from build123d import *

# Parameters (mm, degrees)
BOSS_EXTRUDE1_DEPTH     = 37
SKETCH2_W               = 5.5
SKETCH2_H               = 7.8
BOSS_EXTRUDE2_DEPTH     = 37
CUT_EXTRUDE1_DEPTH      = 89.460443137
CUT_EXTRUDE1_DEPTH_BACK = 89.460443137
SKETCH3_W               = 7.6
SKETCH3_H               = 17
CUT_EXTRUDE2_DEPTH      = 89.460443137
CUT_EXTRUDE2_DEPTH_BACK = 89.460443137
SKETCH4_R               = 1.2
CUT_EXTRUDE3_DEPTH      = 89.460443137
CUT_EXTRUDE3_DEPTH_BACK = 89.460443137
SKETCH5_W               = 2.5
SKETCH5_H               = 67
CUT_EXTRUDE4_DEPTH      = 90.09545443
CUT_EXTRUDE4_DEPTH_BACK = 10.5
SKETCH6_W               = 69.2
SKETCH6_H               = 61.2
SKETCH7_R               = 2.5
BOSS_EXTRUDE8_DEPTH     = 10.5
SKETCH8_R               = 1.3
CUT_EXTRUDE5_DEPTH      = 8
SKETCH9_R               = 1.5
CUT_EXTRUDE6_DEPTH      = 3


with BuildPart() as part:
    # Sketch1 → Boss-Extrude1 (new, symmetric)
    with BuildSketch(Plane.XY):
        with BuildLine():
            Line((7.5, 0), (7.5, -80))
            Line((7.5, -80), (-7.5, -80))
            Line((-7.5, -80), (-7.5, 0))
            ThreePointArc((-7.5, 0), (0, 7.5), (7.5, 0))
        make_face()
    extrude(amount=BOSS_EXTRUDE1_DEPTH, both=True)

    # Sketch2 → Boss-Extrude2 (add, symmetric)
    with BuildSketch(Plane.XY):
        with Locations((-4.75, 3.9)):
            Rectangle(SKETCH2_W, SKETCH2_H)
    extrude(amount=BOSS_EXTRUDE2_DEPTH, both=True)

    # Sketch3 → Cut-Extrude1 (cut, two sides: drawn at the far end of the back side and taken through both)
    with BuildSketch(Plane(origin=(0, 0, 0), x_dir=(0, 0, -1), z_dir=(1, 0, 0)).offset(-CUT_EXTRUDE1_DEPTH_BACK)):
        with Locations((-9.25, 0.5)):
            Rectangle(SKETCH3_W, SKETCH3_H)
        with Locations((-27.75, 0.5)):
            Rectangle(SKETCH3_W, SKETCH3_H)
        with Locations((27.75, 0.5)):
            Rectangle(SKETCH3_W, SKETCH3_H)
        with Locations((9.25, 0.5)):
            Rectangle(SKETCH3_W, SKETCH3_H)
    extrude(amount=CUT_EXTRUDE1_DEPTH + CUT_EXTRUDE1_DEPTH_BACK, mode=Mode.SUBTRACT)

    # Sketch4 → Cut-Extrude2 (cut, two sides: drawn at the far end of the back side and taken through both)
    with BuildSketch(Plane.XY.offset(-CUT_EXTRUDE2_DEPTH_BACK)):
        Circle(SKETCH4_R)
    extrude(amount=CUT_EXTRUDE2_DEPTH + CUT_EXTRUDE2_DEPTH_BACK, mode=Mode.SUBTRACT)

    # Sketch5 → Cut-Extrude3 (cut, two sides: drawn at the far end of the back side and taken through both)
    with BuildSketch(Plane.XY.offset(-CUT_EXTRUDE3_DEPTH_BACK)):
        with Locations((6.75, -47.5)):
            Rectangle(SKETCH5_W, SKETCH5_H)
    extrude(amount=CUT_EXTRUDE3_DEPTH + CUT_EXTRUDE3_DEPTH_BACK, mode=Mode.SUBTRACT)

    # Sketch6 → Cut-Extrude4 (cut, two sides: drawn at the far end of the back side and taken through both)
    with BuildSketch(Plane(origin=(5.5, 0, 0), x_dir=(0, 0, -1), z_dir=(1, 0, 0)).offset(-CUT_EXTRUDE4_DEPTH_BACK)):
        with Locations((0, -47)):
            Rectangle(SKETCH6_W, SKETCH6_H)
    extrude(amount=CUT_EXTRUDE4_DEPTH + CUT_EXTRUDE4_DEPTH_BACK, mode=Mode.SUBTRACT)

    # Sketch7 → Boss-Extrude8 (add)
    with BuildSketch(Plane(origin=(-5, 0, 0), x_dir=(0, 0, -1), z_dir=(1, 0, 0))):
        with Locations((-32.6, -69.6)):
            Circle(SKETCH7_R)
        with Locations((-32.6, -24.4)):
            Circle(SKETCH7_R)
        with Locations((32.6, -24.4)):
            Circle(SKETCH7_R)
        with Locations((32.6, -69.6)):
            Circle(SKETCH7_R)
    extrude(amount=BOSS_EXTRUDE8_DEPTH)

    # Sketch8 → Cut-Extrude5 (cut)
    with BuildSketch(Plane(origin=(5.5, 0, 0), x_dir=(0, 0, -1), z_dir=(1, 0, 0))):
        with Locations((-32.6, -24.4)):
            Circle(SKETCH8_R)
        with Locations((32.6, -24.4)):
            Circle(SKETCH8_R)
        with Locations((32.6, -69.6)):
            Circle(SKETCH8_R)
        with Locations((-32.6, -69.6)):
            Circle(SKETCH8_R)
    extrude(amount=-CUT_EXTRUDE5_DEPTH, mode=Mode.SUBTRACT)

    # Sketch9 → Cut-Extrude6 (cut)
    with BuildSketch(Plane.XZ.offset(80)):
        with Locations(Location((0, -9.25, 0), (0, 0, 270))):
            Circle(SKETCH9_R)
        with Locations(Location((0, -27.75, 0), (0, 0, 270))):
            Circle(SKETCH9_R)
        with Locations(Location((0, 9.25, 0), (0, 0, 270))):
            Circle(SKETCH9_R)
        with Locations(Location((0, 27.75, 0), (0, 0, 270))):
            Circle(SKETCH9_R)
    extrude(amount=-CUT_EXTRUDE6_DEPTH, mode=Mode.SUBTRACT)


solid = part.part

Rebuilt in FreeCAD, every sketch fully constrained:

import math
import FreeCAD as App
import Part
import Sketcher

V = App.Vector
Q = App.Units.Quantity


def add_polygon(sketch, points):
    """Adds a closed chain of lines whose ends are joined by coincident constraints."""
    first, n = sketch.GeometryCount, len(points)
    for a, b in zip(points, points[1:] + points[:1]):
        sketch.addGeometry(Part.LineSegment(App.Vector(*a, 0), App.Vector(*b, 0)), False)
    for i in range(n):
        sketch.addConstraint(Sketcher.Constraint("Coincident", first + i, 2, first + (i + 1) % n, 1))

doc = App.newDocument("Part")
body = doc.addObject("PartDesign::Body", "Body")

# Sketch on XY plane
sketch1 = body.newObject("Sketcher::SketchObject", "Sketch")
sketch1.AttachmentSupport = (doc.getObject("XY_Plane"), [""])
sketch1.MapMode = "FlatFace"
sketch1.addGeometry([
    Part.LineSegment(V(8, -80, 0), V(8, 0, 0)),
    Part.ArcOfCircle(Part.Circle(V(0, 0, 0), V(0, 0, 1), 8), math.radians(0), math.radians(180)),
    Part.LineSegment(V(-8, 0, 0), V(-8, -80, 0)),
    Part.LineSegment(V(-8, -80, 0), V(8, -80, 0)),
], False)
sketch1.addConstraint([
    Sketcher.Constraint("Tangent", 0, 2, 1, 1),
    Sketcher.Constraint("Tangent", 1, 2, 2, 1),
    Sketcher.Constraint("Coincident", 2, 2, 3, 1),
    Sketcher.Constraint("Coincident", 3, 2, 0, 1),
    Sketcher.Constraint("Vertical", 0),
    Sketcher.Constraint("Vertical", 2),
    Sketcher.Constraint("Horizontal", 3),
    Sketcher.Constraint("Coincident", 1, 3, -1, 1),
    Sketcher.Constraint("Radius", 1, Q("7.5 mm")),
    Sketcher.Constraint("DistanceY", 0, 1, 0, 2, Q("80 mm")),
])
pad1 = body.newObject("PartDesign::Pad", "Pad")
pad1.Profile = sketch1
pad1.Length = 74
pad1.Midplane = True

# Sketch on XY plane
sketch2 = body.newObject("Sketcher::SketchObject", "Sketch001")
sketch2.AttachmentSupport = (doc.getObject("XY_Plane"), [""])
sketch2.MapMode = "FlatFace"
add_polygon(sketch2, [(-8, 8), (-8, 0), (-2, 0), (-2, 8)])  # lines 0-3
sketch2.addConstraint([
    Sketcher.Constraint("Vertical", 0),
    Sketcher.Constraint("Horizontal", 1),
    Sketcher.Constraint("Vertical", 2),
    Sketcher.Constraint("Horizontal", 3),
    Sketcher.Constraint("PointOnObject", 0, 2, -1),
    Sketcher.Constraint("DistanceX", 1, 1, 1, 2, Q("5.5 mm")),
    Sketcher.Constraint("DistanceY", 0, 2, 0, 1, Q("7.8 mm")),
    Sketcher.Constraint("DistanceX", 1, 2, -1, 1, Q("2 mm")),
])
pad2 = body.newObject("PartDesign::Pad", "Pad001")
pad2.Profile = sketch2
pad2.Length = 74
pad2.Midplane = True

# Sketch on YZ plane
sketch3 = body.newObject("Sketcher::SketchObject", "Sketch002")
sketch3.AttachmentSupport = (doc.getObject("YZ_Plane"), [""])
sketch3.MapMode = "FlatFace"
add_polygon(sketch3, [(9, 13), (-8, 13), (-8, 5), (9, 5)])  # lines 0-3
add_polygon(sketch3, [(9, 32), (-8, 32), (-8, 24), (9, 24)])  # lines 4-7
add_polygon(sketch3, [(9, -24), (-8, -24), (-8, -32), (9, -32)])  # lines 8-11
add_polygon(sketch3, [(9, -5), (-8, -5), (-8, -13), (9, -13)])  # lines 12-15
sketch3.addConstraint([
    Sketcher.Constraint("Horizontal", 0),
    Sketcher.Constraint("Vertical", 1),
    Sketcher.Constraint("Horizontal", 2),
    Sketcher.Constraint("Vertical", 3),
    Sketcher.Constraint("Horizontal", 4),
    Sketcher.Constraint("Vertical", 5),
    Sketcher.Constraint("Horizontal", 6),
    Sketcher.Constraint("Vertical", 7),
    Sketcher.Constraint("Horizontal", 8),
    Sketcher.Constraint("Vertical", 9),
    Sketcher.Constraint("Horizontal", 10),
    Sketcher.Constraint("Vertical", 11),
    Sketcher.Constraint("Horizontal", 12),
    Sketcher.Constraint("Vertical", 13),
    Sketcher.Constraint("Horizontal", 14),
    Sketcher.Constraint("Vertical", 15),
    Sketcher.Constraint("Symmetric", 5, 2, 8, 2, -1),
    Sketcher.Constraint("Symmetric", 7, 2, 10, 2, -1),
    Sketcher.Constraint("Symmetric", 1, 2, 12, 2, -1),
    Sketcher.Constraint("Symmetric", 3, 2, 14, 2, -1),
    Sketcher.Constraint("Vertical", 1, 2, 4, 2),
    Sketcher.Constraint("Vertical", 3, 2, 6, 2),
    Sketcher.Constraint("Equal", 3, 5),
    Sketcher.Constraint("DistanceX", 0, 2, 0, 1, Q("17 mm")),
    Sketcher.Constraint("DistanceY", 1, 2, 1, 1, Q("7.6 mm")),
    Sketcher.Constraint("DistanceX", 0, 2, -1, 1, Q("8 mm")),
    Sketcher.Constraint("DistanceY", 8, 2, 0, 2, Q("37 mm")),
    Sketcher.Constraint("DistanceY", 0, 2, 4, 2, Q("18.5 mm")),
])
pocket1 = body.newObject("PartDesign::Pocket", "Pocket")
pocket1.Profile = sketch3
pocket1.Type = "ThroughAll"
pocket1.Midplane = True

# Sketch on XY plane
sketch4 = body.newObject("Sketcher::SketchObject", "Sketch003")
sketch4.AttachmentSupport = (doc.getObject("XY_Plane"), [""])
sketch4.MapMode = "FlatFace"
sketch4.addGeometry(Part.Circle(V(0, 0, 0), V(0, 0, 1), 1.2), False)
sketch4.addConstraint([
    Sketcher.Constraint("Coincident", 0, 3, -1, 1),
    Sketcher.Constraint("Diameter", 0, Q("2.4 mm")),
])
pocket2 = body.newObject("PartDesign::Pocket", "Pocket001")
pocket2.Profile = sketch4
pocket2.Type = "ThroughAll"
pocket2.Midplane = True

# Sketch on XY plane
sketch5 = body.newObject("Sketcher::SketchObject", "Sketch004")
sketch5.AttachmentSupport = (doc.getObject("XY_Plane"), [""])
sketch5.MapMode = "FlatFace"
add_polygon(sketch5, [(5.5, -14), (5.5, -81), (8, -81), (8, -14)])  # lines 0-3
sketch5.addConstraint([
    Sketcher.Constraint("Vertical", 0),
    Sketcher.Constraint("Horizontal", 1),
    Sketcher.Constraint("Vertical", 2),
    Sketcher.Constraint("Horizontal", 3),
    Sketcher.Constraint("DistanceY", 0, 2, 0, 1, Q("67 mm")),
    Sketcher.Constraint("DistanceX", 1, 1, 1, 2, Q("2.5 mm")),
    Sketcher.Constraint("DistanceY", 0, 2, -1, 1, Q("81 mm")),
    Sketcher.Constraint("DistanceX", -1, 1, 1, 2, Q("8 mm")),
])
pocket3 = body.newObject("PartDesign::Pocket", "Pocket002")
pocket3.Profile = sketch5
pocket3.Type = "ThroughAll"
pocket3.Midplane = True

# Sketch on YZ plane
sketch6 = body.newObject("Sketcher::SketchObject", "Sketch005")
sketch6.AttachmentSupport = (doc.getObject("YZ_Plane"), [""])
sketch6.MapMode = "FlatFace"
sketch6.AttachmentOffset = App.Placement(V(0, 0, 5.5), App.Rotation())
add_polygon(sketch6, [(-16, 35), (-78, 35), (-78, -35), (-16, -35)])  # lines 0-3
sketch6.addConstraint([
    Sketcher.Constraint("Horizontal", 0),
    Sketcher.Constraint("Vertical", 1),
    Sketcher.Constraint("Horizontal", 2),
    Sketcher.Constraint("Vertical", 3),
    Sketcher.Constraint("DistanceX", 0, 2, 0, 1, Q("61.2 mm")),
    Sketcher.Constraint("DistanceY", 1, 2, 1, 1, Q("69.2 mm")),
    Sketcher.Constraint("DistanceX", 0, 2, -1, 1, Q("77.6 mm")),
    Sketcher.Constraint("DistanceY", -1, 1, 0, 2, Q("34.6 mm")),
])
pocket4 = body.newObject("PartDesign::Pocket", "Pocket003")
pocket4.Profile = sketch6
pocket4.Type = "TwoLengths"
pocket4.Length = 90.095454
pocket4.Length2 = 10.5
pocket4.Reversed = True

# Sketch on YZ plane
sketch7 = body.newObject("Sketcher::SketchObject", "Sketch006")
sketch7.AttachmentSupport = (doc.getObject("YZ_Plane"), [""])
sketch7.MapMode = "FlatFace"
sketch7.AttachmentOffset = App.Placement(V(0, 0, -5), App.Rotation())
sketch7.addGeometry([
    Part.Circle(V(-69.6, 32.6, 0), V(0, 0, 1), 2.5),
    Part.Circle(V(-24.4, 32.6, 0), V(0, 0, 1), 2.5),
    Part.Circle(V(-24.4, -32.6, 0), V(0, 0, 1), 2.5),
    Part.Circle(V(-69.6, -32.6, 0), V(0, 0, 1), 2.5),
], False)
sketch7.addConstraint([
    Sketcher.Constraint("Equal", 0, 1),
    Sketcher.Constraint("Equal", 1, 2),
    Sketcher.Constraint("Equal", 2, 3),
    Sketcher.Constraint("Symmetric", 1, 3, 2, 3, -1),
    Sketcher.Constraint("Symmetric", 0, 3, 3, 3, -1),
    Sketcher.Constraint("Horizontal", 0, 3, 1, 3),
    Sketcher.Constraint("Diameter", 0, Q("5 mm")),
    Sketcher.Constraint("DistanceX", 0, 3, -1, 1, Q("69.6 mm")),
    Sketcher.Constraint("DistanceY", -1, 1, 0, 3, Q("32.6 mm")),
    Sketcher.Constraint("DistanceX", 1, 3, -1, 1, Q("24.4 mm")),
])
pad3 = body.newObject("PartDesign::Pad", "Pad002")
pad3.Profile = sketch7
pad3.Length = 10.5

# Sketch on YZ plane
sketch8 = body.newObject("Sketcher::SketchObject", "Sketch007")
sketch8.AttachmentSupport = (doc.getObject("YZ_Plane"), [""])
sketch8.MapMode = "FlatFace"
sketch8.AttachmentOffset = App.Placement(V(0, 0, 5.5), App.Rotation())
sketch8.addGeometry([
    Part.Circle(V(-24.4, 32.6, 0), V(0, 0, 1), 1.3),
    Part.Circle(V(-24.4, -32.6, 0), V(0, 0, 1), 1.3),
    Part.Circle(V(-69.6, -32.6, 0), V(0, 0, 1), 1.3),
    Part.Circle(V(-69.6, 32.6, 0), V(0, 0, 1), 1.3),
], False)
sketch8.addConstraint([
    Sketcher.Constraint("Equal", 0, 1),
    Sketcher.Constraint("Equal", 1, 2),
    Sketcher.Constraint("Equal", 2, 3),
    Sketcher.Constraint("Symmetric", 0, 3, 1, 3, -1),
    Sketcher.Constraint("Symmetric", 2, 3, 3, 3, -1),
    Sketcher.Constraint("Horizontal", 1, 3, 2, 3),
    Sketcher.Constraint("Diameter", 0, Q("2.6 mm")),
    Sketcher.Constraint("DistanceX", 0, 3, -1, 1, Q("24.4 mm")),
    Sketcher.Constraint("DistanceY", -1, 1, 0, 3, Q("32.6 mm")),
    Sketcher.Constraint("DistanceX", 2, 3, -1, 1, Q("69.6 mm")),
])
pocket5 = body.newObject("PartDesign::Pocket", "Pocket004")
pocket5.Profile = sketch8
pocket5.Length = 8

# Sketch on XZ plane
sketch9 = body.newObject("Sketcher::SketchObject", "Sketch008")
sketch9.AttachmentSupport = (doc.getObject("XZ_Plane"), [""])
sketch9.MapMode = "FlatFace"
sketch9.AttachmentOffset = App.Placement(V(0, 0, 80), App.Rotation())
sketch9.addGeometry([
    Part.Circle(V(0, -9.2, 0), V(0, 0, 1), 1.5),
    Part.Circle(V(0, -27.8, 0), V(0, 0, 1), 1.5),
    Part.Circle(V(0, 9.2, 0), V(0, 0, 1), 1.5),
    Part.Circle(V(0, 27.8, 0), V(0, 0, 1), 1.5),
], False)
sketch9.addConstraint([
    Sketcher.Constraint("Equal", 0, 1),
    Sketcher.Constraint("Equal", 1, 2),
    Sketcher.Constraint("Equal", 2, 3),
    Sketcher.Constraint("Symmetric", 0, 3, 2, 3, -1, 1),
    Sketcher.Constraint("Symmetric", 1, 3, 3, 3, -1, 1),
    Sketcher.Constraint("PointOnObject", 0, 3, -2),
    Sketcher.Constraint("PointOnObject", 1, 3, -2),
    Sketcher.Constraint("Diameter", 0, Q("3 mm")),
    Sketcher.Constraint("DistanceY", 1, 3, 2, 3, Q("37 mm")),
    Sketcher.Constraint("DistanceY", 1, 3, 0, 3, Q("18.5 mm")),
])
pocket6 = body.newObject("PartDesign::Pocket", "Pocket005")
pocket6.Profile = sketch9
pocket6.Length = 3

doc.recompute()
